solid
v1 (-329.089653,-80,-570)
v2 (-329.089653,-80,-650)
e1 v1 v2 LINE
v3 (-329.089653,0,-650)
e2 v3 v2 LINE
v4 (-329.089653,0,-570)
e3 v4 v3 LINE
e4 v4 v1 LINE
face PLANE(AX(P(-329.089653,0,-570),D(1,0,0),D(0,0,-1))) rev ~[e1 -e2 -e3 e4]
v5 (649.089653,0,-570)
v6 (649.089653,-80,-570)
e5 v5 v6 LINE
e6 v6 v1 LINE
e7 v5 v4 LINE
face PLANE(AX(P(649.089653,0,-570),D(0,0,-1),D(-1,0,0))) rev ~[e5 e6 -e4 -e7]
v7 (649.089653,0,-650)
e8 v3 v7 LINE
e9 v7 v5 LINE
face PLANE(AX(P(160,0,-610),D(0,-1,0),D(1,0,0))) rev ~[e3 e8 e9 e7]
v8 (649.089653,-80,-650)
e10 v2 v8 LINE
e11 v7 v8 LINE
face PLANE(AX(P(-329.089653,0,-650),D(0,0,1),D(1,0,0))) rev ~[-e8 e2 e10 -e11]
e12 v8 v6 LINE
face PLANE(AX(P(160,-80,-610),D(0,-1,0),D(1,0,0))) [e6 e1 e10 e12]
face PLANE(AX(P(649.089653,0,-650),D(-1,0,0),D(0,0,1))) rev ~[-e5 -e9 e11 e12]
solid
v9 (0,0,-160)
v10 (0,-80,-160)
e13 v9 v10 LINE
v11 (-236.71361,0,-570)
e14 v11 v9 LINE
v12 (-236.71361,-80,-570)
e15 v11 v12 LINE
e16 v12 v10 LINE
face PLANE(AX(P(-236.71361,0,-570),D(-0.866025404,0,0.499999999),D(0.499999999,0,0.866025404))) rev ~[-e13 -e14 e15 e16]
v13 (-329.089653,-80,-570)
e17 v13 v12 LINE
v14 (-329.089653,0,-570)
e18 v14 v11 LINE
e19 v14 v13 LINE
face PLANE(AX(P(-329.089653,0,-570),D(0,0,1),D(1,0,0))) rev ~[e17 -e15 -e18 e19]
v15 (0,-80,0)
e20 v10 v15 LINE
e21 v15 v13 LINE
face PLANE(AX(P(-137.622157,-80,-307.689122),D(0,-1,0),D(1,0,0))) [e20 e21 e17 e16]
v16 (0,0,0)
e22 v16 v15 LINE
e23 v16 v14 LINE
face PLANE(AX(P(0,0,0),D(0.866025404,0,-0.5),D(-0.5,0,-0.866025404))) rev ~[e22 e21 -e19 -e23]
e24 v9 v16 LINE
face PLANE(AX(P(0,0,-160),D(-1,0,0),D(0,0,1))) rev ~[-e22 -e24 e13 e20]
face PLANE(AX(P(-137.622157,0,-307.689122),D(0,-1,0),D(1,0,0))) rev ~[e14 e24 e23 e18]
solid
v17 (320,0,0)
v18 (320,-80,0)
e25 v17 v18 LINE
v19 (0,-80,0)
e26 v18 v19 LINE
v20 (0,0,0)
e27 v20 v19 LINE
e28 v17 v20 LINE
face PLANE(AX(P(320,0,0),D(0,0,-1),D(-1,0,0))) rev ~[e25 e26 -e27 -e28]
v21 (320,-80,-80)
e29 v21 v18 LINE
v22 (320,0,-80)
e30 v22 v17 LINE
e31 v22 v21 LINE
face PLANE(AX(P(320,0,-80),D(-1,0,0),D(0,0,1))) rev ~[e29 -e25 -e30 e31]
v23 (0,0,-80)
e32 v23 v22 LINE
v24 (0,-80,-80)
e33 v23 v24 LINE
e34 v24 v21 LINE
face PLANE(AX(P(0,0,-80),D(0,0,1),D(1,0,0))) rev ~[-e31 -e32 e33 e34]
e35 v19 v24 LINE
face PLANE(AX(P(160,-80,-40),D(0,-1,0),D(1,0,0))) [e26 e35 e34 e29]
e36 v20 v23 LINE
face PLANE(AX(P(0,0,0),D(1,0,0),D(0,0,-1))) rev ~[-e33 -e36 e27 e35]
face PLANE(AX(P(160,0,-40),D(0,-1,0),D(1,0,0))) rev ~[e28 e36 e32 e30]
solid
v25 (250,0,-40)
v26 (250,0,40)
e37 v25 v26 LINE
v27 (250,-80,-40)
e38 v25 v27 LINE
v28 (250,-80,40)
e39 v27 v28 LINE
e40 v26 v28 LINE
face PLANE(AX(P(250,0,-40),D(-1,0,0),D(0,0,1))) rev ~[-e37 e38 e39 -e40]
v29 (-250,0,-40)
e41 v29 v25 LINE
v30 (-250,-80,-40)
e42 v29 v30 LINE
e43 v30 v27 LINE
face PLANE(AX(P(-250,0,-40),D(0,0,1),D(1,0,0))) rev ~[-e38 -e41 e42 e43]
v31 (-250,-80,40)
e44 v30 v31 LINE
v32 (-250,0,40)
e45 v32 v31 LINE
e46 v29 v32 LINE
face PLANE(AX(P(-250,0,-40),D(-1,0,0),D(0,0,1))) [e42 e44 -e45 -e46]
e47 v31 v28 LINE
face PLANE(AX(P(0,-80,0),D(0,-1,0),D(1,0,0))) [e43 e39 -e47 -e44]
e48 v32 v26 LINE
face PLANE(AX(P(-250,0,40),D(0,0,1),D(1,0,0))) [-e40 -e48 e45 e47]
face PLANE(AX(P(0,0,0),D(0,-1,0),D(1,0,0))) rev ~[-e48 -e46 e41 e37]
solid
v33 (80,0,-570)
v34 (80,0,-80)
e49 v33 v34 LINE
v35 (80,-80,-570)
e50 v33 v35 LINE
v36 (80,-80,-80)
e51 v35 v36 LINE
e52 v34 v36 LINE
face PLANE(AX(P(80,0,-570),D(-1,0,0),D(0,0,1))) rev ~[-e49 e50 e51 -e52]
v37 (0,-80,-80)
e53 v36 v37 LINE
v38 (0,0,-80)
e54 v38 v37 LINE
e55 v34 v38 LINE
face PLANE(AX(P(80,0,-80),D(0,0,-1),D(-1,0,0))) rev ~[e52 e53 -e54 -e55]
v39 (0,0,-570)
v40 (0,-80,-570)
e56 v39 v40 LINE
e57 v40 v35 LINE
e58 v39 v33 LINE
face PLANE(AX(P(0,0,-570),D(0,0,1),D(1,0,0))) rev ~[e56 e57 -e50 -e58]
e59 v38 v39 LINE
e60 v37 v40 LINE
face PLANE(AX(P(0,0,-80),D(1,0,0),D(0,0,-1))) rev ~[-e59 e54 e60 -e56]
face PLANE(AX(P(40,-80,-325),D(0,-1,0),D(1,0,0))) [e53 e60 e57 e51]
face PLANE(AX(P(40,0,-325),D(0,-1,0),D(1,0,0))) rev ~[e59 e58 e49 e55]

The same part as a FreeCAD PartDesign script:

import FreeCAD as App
import Part
import Sketcher
Q = App.Units.Quantity


def add_polygon(sketch, points):
    """Adds a closed chain of lines whose ends are joined by coincident constraints."""
    first, n = sketch.GeometryCount, len(points)
    for a, b in zip(points, points[1:] + points[:1]):
        sketch.addGeometry(Part.LineSegment(App.Vector(*a, 0), App.Vector(*b, 0)), False)
    for i in range(n):
        sketch.addConstraint(Sketcher.Constraint("Coincident", first + i, 2, first + (i + 1) % n, 1))

doc = App.newDocument("Part")
params = doc.addObject("Spreadsheet::Sheet", "Params")
for row, (alias, value) in enumerate([
    ("sketch1_width", "500 mm"),
    ("sketch1_height", "80 mm"),
    ("pad1_length", "80 mm"),
    ("sketch2_height", "80 mm"),
    ("pad2_length", "80 mm"),
    ("sketch3_width", "320 mm"),
    ("sketch3_height", "80 mm"),
    ("pad3_length", "80 mm"),
    ("sketch4_width", "80 mm"),
    ("sketch4_height", "490 mm"),
    ("pad4_length", "80 mm"),
    ("sketch5_height", "160 mm"),
    ("pad5_length", "80 mm"),
], start=1):
    params.set(f"A{row}", alias)
    params.set(f"B{row}", "=" + value)
    params.setAlias(f"B{row}", alias)

body = doc.addObject("PartDesign::Body", "Body")

# Sketch on XZ plane
sketch1 = body.newObject("Sketcher::SketchObject", "Sketch")
sketch1.AttachmentSupport = (doc.getObject("XZ_Plane"), [""])
sketch1.MapMode = "FlatFace"
add_polygon(sketch1, [(-250, 40), (-250, -40), (250, -40), (250, 40)])  # lines 0-3
sketch1.addConstraint([
    Sketcher.Constraint("Vertical", 0),
    Sketcher.Constraint("Horizontal", 1),
    Sketcher.Constraint("Vertical", 2),
    Sketcher.Constraint("Horizontal", 3),
    Sketcher.Constraint("Symmetric", 0, 2, 2, 2, -1, 1),
    Sketcher.Constraint("DistanceX", 1, 1, 1, 2, 500.0),
    Sketcher.Constraint("DistanceY", 0, 2, 0, 1, 80.0),
])
sketch1.setExpression("Constraints[9]", "Params.sketch1_width")
sketch1.setExpression("Constraints[10]", "Params.sketch1_height")
pad1 = body.newObject("PartDesign::Pad", "Pad")
pad1.Profile = sketch1
pad1.setExpression("Length", "Params.pad1_length")
body2 = doc.addObject("PartDesign::Body", "Body001")

# Sketch on XZ plane
sketch2 = body2.newObject("Sketcher::SketchObject", "Sketch001")
sketch2.AttachmentSupport = (doc.getObject("XZ_Plane001"), [""])
sketch2.MapMode = "FlatFace"
add_polygon(sketch2, [(-329.089653, -570), (-329.089653, -650), (649.089653, -650), (649.089653, -570)])  # lines 0-3
sketch2.addConstraint([
    Sketcher.Constraint("Vertical", 0),
    Sketcher.Constraint("Horizontal", 1),
    Sketcher.Constraint("Vertical", 2),
    Sketcher.Constraint("Horizontal", 3),
    Sketcher.Constraint("DistanceY", 0, 2, 0, 1, 80.0),
    Sketcher.Constraint("DistanceY", 0, 2, -1, 1, 650.0),
    Sketcher.Constraint("DistanceX", 1, 1, 1, 2, 978.179306),
    Sketcher.Constraint("DistanceX", 0, 2, -1, 1, 329.089653),
])
sketch2.setExpression("Constraints[8]", "Params.sketch2_height")
pad2 = body2.newObject("PartDesign::Pad", "Pad001")
pad2.Profile = sketch2
pad2.setExpression("Length", "Params.pad2_length")
body3 = doc.addObject("PartDesign::Body", "Body002")

# Sketch on XZ plane
sketch3 = body3.newObject("Sketcher::SketchObject", "Sketch002")
sketch3.AttachmentSupport = (doc.getObject("XZ_Plane002"), [""])
sketch3.MapMode = "FlatFace"
add_polygon(sketch3, [(320, 0), (0, 0), (0, -80), (320, -80)])  # lines 0-3
sketch3.addConstraint([
    Sketcher.Constraint("Horizontal", 0),
    Sketcher.Constraint("Vertical", 1),
    Sketcher.Constraint("Horizontal", 2),
    Sketcher.Constraint("Vertical", 3),
    Sketcher.Constraint("Coincident", 0, 2, -1, 1),
    Sketcher.Constraint("DistanceX", 0, 2, 0, 1, 320.0),
    Sketcher.Constraint("DistanceY", 1, 2, 1, 1, 80.0),
])
sketch3.setExpression("Constraints[9]", "Params.sketch3_width")
sketch3.setExpression("Constraints[10]", "Params.sketch3_height")
pad3 = body3.newObject("PartDesign::Pad", "Pad002")
pad3.Profile = sketch3
pad3.setExpression("Length", "Params.pad3_length")
body4 = doc.addObject("PartDesign::Body", "Body003")

# Sketch on XZ plane
sketch4 = body4.newObject("Sketcher::SketchObject", "Sketch003")
sketch4.AttachmentSupport = (doc.getObject("XZ_Plane003"), [""])
sketch4.MapMode = "FlatFace"
add_polygon(sketch4, [(80, -80), (0, -80), (0, -570), (80, -570)])  # lines 0-3
sketch4.addConstraint([
    Sketcher.Constraint("Horizontal", 0),
    Sketcher.Constraint("Vertical", 1),
    Sketcher.Constraint("Horizontal", 2),
    Sketcher.Constraint("Vertical", 3),
    Sketcher.Constraint("PointOnObject", 0, 2, -2),
    Sketcher.Constraint("DistanceX", 0, 2, 0, 1, 80.0),
    Sketcher.Constraint("DistanceY", 1, 2, 1, 1, 490.0),
    Sketcher.Constraint("DistanceY", 0, 2, -1, 1, 80.0),
])
sketch4.setExpression("Constraints[9]", "Params.sketch4_width")
sketch4.setExpression("Constraints[10]", "Params.sketch4_height")
pad4 = body4.newObject("PartDesign::Pad", "Pad003")
pad4.Profile = sketch4
pad4.setExpression("Length", "Params.pad4_length")
body5 = doc.addObject("PartDesign::Body", "Body004")

# Sketch on XZ plane
sketch5 = body5.newObject("Sketcher::SketchObject", "Sketch004")
sketch5.AttachmentSupport = (doc.getObject("XZ_Plane004"), [""])
sketch5.MapMode = "FlatFace"
add_polygon(sketch5, [(0, 0), (-329.089653, -570), (-236.71361, -570), (0, -160)])  # lines 0-3
sketch5.addConstraint([
    Sketcher.Constraint("Horizontal", 1),
    Sketcher.Constraint("Vertical", 3),
    Sketcher.Constraint("Coincident", 3, 2, -1, 1),
    Sketcher.Constraint("Parallel", 0, 2),
    Sketcher.Constraint("DistanceY", 3, 1, 3, 2, 160.0),
    Sketcher.Constraint("Angle", 0, Q("-120 deg")),
    Sketcher.Constraint("DistanceY", 0, 2, -1, 1, 570.0),
])
sketch5.setExpression("Constraints[8]", "Params.sketch5_height")
pad5 = body5.newObject("PartDesign::Pad", "Pad004")
pad5.Profile = sketch5
pad5.setExpression("Length", "Params.pad5_length")

doc.recompute()
